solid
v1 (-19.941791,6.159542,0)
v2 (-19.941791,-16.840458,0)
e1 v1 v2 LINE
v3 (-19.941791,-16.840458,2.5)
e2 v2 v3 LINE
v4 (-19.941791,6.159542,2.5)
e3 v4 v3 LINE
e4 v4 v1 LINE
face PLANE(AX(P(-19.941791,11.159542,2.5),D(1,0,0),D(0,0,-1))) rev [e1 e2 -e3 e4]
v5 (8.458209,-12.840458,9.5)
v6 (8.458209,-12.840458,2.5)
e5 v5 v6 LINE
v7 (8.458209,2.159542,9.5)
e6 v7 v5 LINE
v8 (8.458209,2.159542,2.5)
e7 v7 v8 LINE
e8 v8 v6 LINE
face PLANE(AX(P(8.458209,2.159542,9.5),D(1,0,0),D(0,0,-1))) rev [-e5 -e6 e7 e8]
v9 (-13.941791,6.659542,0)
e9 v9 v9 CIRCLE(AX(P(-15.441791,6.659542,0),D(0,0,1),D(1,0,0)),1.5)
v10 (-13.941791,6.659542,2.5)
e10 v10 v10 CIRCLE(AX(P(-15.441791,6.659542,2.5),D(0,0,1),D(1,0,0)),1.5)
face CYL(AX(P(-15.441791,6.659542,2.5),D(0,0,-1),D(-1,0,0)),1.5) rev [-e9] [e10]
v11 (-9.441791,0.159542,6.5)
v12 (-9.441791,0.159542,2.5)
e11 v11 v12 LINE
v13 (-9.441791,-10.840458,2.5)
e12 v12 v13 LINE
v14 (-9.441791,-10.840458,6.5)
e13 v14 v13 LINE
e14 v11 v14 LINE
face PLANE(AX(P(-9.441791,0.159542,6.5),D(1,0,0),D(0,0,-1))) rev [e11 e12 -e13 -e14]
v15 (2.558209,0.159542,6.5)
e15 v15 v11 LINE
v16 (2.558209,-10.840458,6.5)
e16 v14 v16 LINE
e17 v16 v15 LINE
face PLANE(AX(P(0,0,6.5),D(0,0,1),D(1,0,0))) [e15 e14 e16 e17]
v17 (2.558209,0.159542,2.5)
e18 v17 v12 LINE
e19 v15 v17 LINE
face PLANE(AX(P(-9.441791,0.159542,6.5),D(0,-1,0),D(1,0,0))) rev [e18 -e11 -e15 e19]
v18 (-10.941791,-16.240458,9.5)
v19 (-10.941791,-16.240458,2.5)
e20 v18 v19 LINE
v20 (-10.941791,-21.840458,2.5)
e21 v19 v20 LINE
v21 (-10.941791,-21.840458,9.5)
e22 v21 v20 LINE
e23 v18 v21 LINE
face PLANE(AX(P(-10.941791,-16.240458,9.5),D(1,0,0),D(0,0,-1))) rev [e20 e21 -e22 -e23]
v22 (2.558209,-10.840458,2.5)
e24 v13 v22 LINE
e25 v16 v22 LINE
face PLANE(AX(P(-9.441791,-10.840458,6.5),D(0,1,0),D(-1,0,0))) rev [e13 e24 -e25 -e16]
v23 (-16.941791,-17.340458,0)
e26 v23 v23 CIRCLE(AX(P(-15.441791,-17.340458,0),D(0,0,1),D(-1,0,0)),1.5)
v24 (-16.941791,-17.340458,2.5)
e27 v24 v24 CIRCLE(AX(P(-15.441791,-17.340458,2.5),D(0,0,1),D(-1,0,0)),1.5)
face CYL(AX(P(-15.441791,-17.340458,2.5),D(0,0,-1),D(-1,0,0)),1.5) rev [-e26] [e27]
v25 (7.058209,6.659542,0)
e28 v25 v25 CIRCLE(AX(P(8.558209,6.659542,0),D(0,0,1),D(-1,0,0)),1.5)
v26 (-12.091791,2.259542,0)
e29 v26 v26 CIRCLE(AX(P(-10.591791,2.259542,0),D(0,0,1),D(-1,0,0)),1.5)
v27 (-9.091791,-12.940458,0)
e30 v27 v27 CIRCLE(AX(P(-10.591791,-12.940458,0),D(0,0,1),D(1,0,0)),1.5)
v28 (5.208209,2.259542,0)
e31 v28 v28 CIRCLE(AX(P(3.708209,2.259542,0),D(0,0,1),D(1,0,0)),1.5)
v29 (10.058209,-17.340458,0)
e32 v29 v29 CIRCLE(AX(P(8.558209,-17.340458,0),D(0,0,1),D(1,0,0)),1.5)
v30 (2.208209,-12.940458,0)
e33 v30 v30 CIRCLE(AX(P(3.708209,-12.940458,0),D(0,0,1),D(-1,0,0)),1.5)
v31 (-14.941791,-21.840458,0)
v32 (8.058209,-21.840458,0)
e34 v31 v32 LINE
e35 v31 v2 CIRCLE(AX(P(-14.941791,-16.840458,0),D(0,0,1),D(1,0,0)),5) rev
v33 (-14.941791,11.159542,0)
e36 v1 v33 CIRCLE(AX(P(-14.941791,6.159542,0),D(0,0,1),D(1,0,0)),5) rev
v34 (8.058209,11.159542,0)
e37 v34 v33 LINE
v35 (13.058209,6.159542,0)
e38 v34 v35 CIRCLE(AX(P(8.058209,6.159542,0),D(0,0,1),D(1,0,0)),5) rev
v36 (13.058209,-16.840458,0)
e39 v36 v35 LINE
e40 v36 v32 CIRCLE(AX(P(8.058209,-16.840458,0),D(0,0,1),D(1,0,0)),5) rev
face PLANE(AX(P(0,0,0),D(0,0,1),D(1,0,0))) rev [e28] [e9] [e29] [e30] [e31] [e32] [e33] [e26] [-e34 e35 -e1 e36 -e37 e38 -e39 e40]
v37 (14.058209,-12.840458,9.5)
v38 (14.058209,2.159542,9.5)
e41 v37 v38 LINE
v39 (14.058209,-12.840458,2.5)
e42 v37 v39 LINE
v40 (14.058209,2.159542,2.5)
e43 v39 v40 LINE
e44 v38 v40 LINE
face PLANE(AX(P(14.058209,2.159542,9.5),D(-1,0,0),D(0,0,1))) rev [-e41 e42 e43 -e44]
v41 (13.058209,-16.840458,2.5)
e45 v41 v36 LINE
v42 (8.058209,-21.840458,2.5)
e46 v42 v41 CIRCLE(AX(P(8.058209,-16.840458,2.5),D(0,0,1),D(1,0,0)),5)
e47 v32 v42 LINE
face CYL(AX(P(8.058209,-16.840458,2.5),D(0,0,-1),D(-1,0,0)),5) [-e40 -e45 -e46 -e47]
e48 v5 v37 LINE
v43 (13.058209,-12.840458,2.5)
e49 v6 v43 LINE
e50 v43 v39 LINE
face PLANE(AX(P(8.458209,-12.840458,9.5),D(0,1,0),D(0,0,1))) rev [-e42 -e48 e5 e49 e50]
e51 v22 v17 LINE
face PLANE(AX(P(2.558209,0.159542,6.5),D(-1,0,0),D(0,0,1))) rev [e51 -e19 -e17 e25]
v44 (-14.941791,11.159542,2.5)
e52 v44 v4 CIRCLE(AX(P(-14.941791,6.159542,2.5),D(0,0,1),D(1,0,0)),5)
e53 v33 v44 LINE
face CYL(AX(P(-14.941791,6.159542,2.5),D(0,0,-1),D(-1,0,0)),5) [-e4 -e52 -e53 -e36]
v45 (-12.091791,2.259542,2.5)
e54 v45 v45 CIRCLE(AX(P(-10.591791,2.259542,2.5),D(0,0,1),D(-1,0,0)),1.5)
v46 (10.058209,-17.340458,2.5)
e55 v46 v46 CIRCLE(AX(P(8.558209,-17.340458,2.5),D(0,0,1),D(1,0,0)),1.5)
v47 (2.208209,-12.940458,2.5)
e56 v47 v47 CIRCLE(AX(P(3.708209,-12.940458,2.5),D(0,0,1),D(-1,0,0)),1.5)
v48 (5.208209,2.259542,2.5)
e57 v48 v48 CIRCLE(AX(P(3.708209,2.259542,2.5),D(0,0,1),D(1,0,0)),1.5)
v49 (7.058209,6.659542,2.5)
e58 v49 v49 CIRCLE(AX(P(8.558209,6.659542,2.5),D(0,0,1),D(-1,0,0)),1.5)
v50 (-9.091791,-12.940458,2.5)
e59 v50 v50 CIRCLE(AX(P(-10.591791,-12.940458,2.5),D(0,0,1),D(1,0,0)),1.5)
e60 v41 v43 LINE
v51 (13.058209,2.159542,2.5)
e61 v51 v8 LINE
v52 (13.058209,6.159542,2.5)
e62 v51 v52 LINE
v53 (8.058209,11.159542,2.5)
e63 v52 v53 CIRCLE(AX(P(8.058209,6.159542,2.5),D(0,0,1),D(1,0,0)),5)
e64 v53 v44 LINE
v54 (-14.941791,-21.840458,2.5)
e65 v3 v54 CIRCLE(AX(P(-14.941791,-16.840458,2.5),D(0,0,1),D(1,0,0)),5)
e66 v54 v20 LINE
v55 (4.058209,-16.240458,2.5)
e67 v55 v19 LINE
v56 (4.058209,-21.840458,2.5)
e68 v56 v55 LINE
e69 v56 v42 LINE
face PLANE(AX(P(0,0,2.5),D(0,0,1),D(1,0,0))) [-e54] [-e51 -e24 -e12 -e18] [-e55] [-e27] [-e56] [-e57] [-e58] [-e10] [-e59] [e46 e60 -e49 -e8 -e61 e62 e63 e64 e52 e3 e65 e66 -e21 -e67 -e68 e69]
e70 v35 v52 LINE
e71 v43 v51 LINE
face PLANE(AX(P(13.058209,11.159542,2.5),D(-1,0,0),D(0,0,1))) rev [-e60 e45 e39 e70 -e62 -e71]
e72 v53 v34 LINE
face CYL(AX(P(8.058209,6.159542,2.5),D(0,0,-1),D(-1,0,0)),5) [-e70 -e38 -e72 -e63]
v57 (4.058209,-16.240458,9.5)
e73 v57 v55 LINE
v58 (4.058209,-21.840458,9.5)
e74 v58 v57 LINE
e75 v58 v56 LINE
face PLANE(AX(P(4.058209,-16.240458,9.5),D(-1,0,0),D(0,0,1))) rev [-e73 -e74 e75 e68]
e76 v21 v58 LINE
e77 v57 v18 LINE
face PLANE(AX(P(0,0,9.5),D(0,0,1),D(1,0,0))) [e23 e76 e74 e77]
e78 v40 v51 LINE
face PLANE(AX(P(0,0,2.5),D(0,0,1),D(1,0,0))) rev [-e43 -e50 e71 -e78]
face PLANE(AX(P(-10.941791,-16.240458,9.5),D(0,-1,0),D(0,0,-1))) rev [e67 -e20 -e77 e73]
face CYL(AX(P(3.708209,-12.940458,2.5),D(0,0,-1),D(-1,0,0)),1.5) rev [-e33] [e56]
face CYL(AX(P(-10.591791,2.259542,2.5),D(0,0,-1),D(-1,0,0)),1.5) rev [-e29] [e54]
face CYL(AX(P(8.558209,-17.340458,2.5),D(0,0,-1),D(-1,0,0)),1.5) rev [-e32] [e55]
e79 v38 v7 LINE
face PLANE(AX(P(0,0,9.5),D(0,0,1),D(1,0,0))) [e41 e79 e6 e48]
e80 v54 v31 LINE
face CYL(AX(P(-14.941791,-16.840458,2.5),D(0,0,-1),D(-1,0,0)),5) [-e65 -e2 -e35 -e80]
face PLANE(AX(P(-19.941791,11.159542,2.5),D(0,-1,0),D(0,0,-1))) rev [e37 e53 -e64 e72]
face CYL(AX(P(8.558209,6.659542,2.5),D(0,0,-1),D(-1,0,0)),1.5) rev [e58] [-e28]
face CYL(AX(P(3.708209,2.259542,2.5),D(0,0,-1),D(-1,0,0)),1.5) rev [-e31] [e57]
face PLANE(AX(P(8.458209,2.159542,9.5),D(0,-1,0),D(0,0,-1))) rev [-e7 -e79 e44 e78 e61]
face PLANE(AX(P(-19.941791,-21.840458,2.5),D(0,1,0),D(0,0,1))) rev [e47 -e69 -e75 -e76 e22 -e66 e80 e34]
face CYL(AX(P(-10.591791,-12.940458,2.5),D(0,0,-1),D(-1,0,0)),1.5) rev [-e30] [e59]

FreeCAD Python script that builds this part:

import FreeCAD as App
import Part
import Sketcher

V = App.Vector


def edges_at(feature, points):
    """Names of the edges that pass closest to the given points."""
    edges = feature.Shape.Edges
    near = lambda p: min(range(len(edges)), key=lambda i: edges[i].distToShape(Part.Vertex(*p))[0])
    return sorted({f"Edge{near(p) + 1}" for p in points})

doc = App.newDocument("Part")
body = doc.addObject("PartDesign::Body", "Body")

# Sketch on XY plane
sketch1 = body.newObject("Sketcher::SketchObject", "Sketch")
sketch1.AttachmentSupport = (doc.getObject("XY_Plane"), [""])
sketch1.MapMode = "FlatFace"
sketch1.addGeometry([
    Part.LineSegment(V(-19.941791, 11.159542, 0), V(-19.941791, -21.840458, 0)),  # 0
    Part.LineSegment(V(-19.941791, -21.840458, 0), V(13.058209, -21.840458, 0)),  # 1
    Part.LineSegment(V(13.058209, -21.840458, 0), V(13.058209, 11.159542, 0)),  # 2
    Part.LineSegment(V(13.058209, 11.159542, 0), V(-19.941791, 11.159542, 0)),  # 3
    Part.Circle(V(-15.441791, -17.340458, 0), V(0, 0, 1), 1.5),  # 4
    Part.Circle(V(-10.591791, -12.940458, 0), V(0, 0, 1), 1.5),  # 5
    Part.Circle(V(8.558209, -17.340458, 0), V(0, 0, 1), 1.5),  # 6
    Part.Circle(V(3.708209, -12.940458, 0), V(0, 0, 1), 1.5),  # 7
    Part.Circle(V(-10.591791, 2.259542, 0), V(0, 0, 1), 1.5),  # 8
    Part.Circle(V(-15.441791, 6.659542, 0), V(0, 0, 1), 1.5),  # 9
    Part.Circle(V(3.708209, 2.259542, 0), V(0, 0, 1), 1.5),  # 10
    Part.Circle(V(8.558209, 6.659542, 0), V(0, 0, 1), 1.5),  # 11
], False)
sketch1.addConstraint([
    Sketcher.Constraint("Coincident", 0, 2, 1, 1),
    Sketcher.Constraint("Coincident", 1, 2, 2, 1),
    Sketcher.Constraint("Coincident", 2, 2, 3, 1),
    Sketcher.Constraint("Coincident", 3, 2, 0, 1),
    Sketcher.Constraint("Vertical", 0),
    Sketcher.Constraint("Horizontal", 1),
    Sketcher.Constraint("Vertical", 2),
    Sketcher.Constraint("Horizontal", 3),
    Sketcher.Constraint("Equal", 4, 5),
    Sketcher.Constraint("Equal", 5, 6),
    Sketcher.Constraint("Equal", 6, 7),
    Sketcher.Constraint("Equal", 7, 8),
    Sketcher.Constraint("Equal", 8, 9),
    Sketcher.Constraint("Equal", 9, 10),
    Sketcher.Constraint("Equal", 10, 11),
    Sketcher.Constraint("Horizontal", 4, 3, 6, 3),
    Sketcher.Constraint("Horizontal", 5, 3, 7, 3),
    Sketcher.Constraint("Horizontal", 8, 3, 10, 3),
    Sketcher.Constraint("Horizontal", 9, 3, 11, 3),
    Sketcher.Constraint("Vertical", 5, 3, 8, 3),
    Sketcher.Constraint("Vertical", 4, 3, 9, 3),
    Sketcher.Constraint("Vertical", 7, 3, 10, 3),
    Sketcher.Constraint("Vertical", 6, 3, 11, 3),
    Sketcher.Constraint("Equal", 3, 0),
    Sketcher.Constraint("Diameter", 4, 3.0),
    Sketcher.Constraint("DistanceX", 1, 1, 1, 2, 33.0),
    Sketcher.Constraint("DistanceX", 4, 3, 6, 3, 24.0),
    Sketcher.Constraint("DistanceY", 4, 3, 9, 3, 24.0),
    Sketcher.Constraint("DistanceY", 4, 3, 5, 3, 4.4),
    Sketcher.Constraint("DistanceX", 5, 3, 7, 3, 14.3),
    Sketcher.Constraint("DistanceY", 5, 3, 8, 3, 15.2),
    Sketcher.Constraint("DistanceX", 0, 2, 4, 3, 4.5),
    Sketcher.Constraint("DistanceY", 0, 2, 4, 3, 4.5),
    Sketcher.Constraint("DistanceX", 4, 3, 5, 3, 4.85),
    Sketcher.Constraint("DistanceX", 4, 3, -1, 1, 15.441791),
    Sketcher.Constraint("DistanceY", 4, 3, -1, 1, 17.340458),
])
pad1 = body.newObject("PartDesign::Pad", "Pad")
pad1.Profile = sketch1
pad1.Length = 2.5
doc.recompute()

fillet = body.newObject("PartDesign::Fillet", "Fillet")
fillet.Base = (pad1, edges_at(pad1, [
    (-19.942, 11.16, 1.25),
    (13.058, 11.16, 1.25),
    (13.058, -21.84, 1.25),
    (-19.942, -21.84, 1.25),
]))
fillet.Radius = 5

# Sketch on XY plane
sketch2 = body.newObject("Sketcher::SketchObject", "Sketch001")
sketch2.AttachmentSupport = (doc.getObject("XY_Plane"), [""])
sketch2.MapMode = "FlatFace"
sketch2.AttachmentOffset = App.Placement(V(0, 0, 2.5), App.Rotation())
sketch2.addGeometry([
    Part.LineSegment(V(-10.941791, -16.240458, 0), V(-10.941791, -21.840458, 0)),  # 0
    Part.LineSegment(V(-10.941791, -21.840458, 0), V(4.058209, -21.840458, 0)),  # 1
    Part.LineSegment(V(4.058209, -21.840458, 0), V(4.058209, -16.240458, 0)),  # 2
    Part.LineSegment(V(4.058209, -16.240458, 0), V(-10.941791, -16.240458, 0)),  # 3
    Part.LineSegment(V(8.458209, 2.159542, 0), V(8.458209, -12.840458, 0)),  # 4
    Part.LineSegment(V(8.458209, -12.840458, 0), V(14.058209, -12.840458, 0)),  # 5
    Part.LineSegment(V(14.058209, -12.840458, 0), V(14.058209, 2.159542, 0)),  # 6
    Part.LineSegment(V(14.058209, 2.159542, 0), V(8.458209, 2.159542, 0)),  # 7
], False)
sketch2.addConstraint([
    Sketcher.Constraint("Coincident", 0, 2, 1, 1),
    Sketcher.Constraint("Coincident", 1, 2, 2, 1),
    Sketcher.Constraint("Coincident", 2, 2, 3, 1),
    Sketcher.Constraint("Coincident", 3, 2, 0, 1),
    Sketcher.Constraint("Coincident", 4, 2, 5, 1),
    Sketcher.Constraint("Coincident", 5, 2, 6, 1),
    Sketcher.Constraint("Coincident", 6, 2, 7, 1),
    Sketcher.Constraint("Coincident", 7, 2, 4, 1),
    Sketcher.Constraint("Vertical", 0),
    Sketcher.Constraint("Horizontal", 1),
    Sketcher.Constraint("Vertical", 2),
    Sketcher.Constraint("Horizontal", 3),
    Sketcher.Constraint("Vertical", 4),
    Sketcher.Constraint("Horizontal", 5),
    Sketcher.Constraint("Vertical", 6),
    Sketcher.Constraint("Horizontal", 7),
    Sketcher.Constraint("Equal", 7, 0),
    Sketcher.Constraint("Equal", 3, 4),
    Sketcher.Constraint("DistanceX", 1, 1, 1, 2, 15.0),
    Sketcher.Constraint("DistanceX", 5, 1, 5, 2, 5.6),
    Sketcher.Constraint("DistanceY", 1, 2, 4, 2, 9.0),
    Sketcher.Constraint("DistanceX", 2, 2, 5, 2, 10.0),
    Sketcher.Constraint("DistanceX", 0, 2, -1, 1, 10.941791),
    Sketcher.Constraint("DistanceY", 0, 2, -1, 1, 21.840458),
])
pad2 = body.newObject("PartDesign::Pad", "Pad001")
pad2.Profile = sketch2
pad2.Length = 7

# Sketch on XY plane
sketch3 = body.newObject("Sketcher::SketchObject", "Sketch002")
sketch3.AttachmentSupport = (doc.getObject("XY_Plane"), [""])
sketch3.MapMode = "FlatFace"
sketch3.AttachmentOffset = App.Placement(V(0, 0, 2.5), App.Rotation())
sketch3.addGeometry([
    Part.LineSegment(V(-9.441791, 0.159542, 0), V(-9.441791, -10.840458, 0)),
    Part.LineSegment(V(-9.441791, -10.840458, 0), V(2.558209, -10.840458, 0)),
    Part.LineSegment(V(2.558209, -10.840458, 0), V(2.558209, 0.159542, 0)),
    Part.LineSegment(V(2.558209, 0.159542, 0), V(-9.441791, 0.159542, 0)),
], False)
sketch3.addConstraint([
    Sketcher.Constraint("Coincident", 0, 2, 1, 1),
    Sketcher.Constraint("Coincident", 1, 2, 2, 1),
    Sketcher.Constraint("Coincident", 2, 2, 3, 1),
    Sketcher.Constraint("Coincident", 3, 2, 0, 1),
    Sketcher.Constraint("Vertical", 0),
    Sketcher.Constraint("Horizontal", 1),
    Sketcher.Constraint("Vertical", 2),
    Sketcher.Constraint("Horizontal", 3),
    Sketcher.Constraint("DistanceX", 1, 1, 1, 2, 12.0),
    Sketcher.Constraint("DistanceY", 0, 2, 0, 1, 11.0),
    Sketcher.Constraint("DistanceX", 0, 2, -1, 1, 9.441791),
    Sketcher.Constraint("DistanceY", 0, 2, -1, 1, 10.840458),
])
pad3 = body.newObject("PartDesign::Pad", "Pad002")
pad3.Profile = sketch3
pad3.Length = 4

doc.recompute()
